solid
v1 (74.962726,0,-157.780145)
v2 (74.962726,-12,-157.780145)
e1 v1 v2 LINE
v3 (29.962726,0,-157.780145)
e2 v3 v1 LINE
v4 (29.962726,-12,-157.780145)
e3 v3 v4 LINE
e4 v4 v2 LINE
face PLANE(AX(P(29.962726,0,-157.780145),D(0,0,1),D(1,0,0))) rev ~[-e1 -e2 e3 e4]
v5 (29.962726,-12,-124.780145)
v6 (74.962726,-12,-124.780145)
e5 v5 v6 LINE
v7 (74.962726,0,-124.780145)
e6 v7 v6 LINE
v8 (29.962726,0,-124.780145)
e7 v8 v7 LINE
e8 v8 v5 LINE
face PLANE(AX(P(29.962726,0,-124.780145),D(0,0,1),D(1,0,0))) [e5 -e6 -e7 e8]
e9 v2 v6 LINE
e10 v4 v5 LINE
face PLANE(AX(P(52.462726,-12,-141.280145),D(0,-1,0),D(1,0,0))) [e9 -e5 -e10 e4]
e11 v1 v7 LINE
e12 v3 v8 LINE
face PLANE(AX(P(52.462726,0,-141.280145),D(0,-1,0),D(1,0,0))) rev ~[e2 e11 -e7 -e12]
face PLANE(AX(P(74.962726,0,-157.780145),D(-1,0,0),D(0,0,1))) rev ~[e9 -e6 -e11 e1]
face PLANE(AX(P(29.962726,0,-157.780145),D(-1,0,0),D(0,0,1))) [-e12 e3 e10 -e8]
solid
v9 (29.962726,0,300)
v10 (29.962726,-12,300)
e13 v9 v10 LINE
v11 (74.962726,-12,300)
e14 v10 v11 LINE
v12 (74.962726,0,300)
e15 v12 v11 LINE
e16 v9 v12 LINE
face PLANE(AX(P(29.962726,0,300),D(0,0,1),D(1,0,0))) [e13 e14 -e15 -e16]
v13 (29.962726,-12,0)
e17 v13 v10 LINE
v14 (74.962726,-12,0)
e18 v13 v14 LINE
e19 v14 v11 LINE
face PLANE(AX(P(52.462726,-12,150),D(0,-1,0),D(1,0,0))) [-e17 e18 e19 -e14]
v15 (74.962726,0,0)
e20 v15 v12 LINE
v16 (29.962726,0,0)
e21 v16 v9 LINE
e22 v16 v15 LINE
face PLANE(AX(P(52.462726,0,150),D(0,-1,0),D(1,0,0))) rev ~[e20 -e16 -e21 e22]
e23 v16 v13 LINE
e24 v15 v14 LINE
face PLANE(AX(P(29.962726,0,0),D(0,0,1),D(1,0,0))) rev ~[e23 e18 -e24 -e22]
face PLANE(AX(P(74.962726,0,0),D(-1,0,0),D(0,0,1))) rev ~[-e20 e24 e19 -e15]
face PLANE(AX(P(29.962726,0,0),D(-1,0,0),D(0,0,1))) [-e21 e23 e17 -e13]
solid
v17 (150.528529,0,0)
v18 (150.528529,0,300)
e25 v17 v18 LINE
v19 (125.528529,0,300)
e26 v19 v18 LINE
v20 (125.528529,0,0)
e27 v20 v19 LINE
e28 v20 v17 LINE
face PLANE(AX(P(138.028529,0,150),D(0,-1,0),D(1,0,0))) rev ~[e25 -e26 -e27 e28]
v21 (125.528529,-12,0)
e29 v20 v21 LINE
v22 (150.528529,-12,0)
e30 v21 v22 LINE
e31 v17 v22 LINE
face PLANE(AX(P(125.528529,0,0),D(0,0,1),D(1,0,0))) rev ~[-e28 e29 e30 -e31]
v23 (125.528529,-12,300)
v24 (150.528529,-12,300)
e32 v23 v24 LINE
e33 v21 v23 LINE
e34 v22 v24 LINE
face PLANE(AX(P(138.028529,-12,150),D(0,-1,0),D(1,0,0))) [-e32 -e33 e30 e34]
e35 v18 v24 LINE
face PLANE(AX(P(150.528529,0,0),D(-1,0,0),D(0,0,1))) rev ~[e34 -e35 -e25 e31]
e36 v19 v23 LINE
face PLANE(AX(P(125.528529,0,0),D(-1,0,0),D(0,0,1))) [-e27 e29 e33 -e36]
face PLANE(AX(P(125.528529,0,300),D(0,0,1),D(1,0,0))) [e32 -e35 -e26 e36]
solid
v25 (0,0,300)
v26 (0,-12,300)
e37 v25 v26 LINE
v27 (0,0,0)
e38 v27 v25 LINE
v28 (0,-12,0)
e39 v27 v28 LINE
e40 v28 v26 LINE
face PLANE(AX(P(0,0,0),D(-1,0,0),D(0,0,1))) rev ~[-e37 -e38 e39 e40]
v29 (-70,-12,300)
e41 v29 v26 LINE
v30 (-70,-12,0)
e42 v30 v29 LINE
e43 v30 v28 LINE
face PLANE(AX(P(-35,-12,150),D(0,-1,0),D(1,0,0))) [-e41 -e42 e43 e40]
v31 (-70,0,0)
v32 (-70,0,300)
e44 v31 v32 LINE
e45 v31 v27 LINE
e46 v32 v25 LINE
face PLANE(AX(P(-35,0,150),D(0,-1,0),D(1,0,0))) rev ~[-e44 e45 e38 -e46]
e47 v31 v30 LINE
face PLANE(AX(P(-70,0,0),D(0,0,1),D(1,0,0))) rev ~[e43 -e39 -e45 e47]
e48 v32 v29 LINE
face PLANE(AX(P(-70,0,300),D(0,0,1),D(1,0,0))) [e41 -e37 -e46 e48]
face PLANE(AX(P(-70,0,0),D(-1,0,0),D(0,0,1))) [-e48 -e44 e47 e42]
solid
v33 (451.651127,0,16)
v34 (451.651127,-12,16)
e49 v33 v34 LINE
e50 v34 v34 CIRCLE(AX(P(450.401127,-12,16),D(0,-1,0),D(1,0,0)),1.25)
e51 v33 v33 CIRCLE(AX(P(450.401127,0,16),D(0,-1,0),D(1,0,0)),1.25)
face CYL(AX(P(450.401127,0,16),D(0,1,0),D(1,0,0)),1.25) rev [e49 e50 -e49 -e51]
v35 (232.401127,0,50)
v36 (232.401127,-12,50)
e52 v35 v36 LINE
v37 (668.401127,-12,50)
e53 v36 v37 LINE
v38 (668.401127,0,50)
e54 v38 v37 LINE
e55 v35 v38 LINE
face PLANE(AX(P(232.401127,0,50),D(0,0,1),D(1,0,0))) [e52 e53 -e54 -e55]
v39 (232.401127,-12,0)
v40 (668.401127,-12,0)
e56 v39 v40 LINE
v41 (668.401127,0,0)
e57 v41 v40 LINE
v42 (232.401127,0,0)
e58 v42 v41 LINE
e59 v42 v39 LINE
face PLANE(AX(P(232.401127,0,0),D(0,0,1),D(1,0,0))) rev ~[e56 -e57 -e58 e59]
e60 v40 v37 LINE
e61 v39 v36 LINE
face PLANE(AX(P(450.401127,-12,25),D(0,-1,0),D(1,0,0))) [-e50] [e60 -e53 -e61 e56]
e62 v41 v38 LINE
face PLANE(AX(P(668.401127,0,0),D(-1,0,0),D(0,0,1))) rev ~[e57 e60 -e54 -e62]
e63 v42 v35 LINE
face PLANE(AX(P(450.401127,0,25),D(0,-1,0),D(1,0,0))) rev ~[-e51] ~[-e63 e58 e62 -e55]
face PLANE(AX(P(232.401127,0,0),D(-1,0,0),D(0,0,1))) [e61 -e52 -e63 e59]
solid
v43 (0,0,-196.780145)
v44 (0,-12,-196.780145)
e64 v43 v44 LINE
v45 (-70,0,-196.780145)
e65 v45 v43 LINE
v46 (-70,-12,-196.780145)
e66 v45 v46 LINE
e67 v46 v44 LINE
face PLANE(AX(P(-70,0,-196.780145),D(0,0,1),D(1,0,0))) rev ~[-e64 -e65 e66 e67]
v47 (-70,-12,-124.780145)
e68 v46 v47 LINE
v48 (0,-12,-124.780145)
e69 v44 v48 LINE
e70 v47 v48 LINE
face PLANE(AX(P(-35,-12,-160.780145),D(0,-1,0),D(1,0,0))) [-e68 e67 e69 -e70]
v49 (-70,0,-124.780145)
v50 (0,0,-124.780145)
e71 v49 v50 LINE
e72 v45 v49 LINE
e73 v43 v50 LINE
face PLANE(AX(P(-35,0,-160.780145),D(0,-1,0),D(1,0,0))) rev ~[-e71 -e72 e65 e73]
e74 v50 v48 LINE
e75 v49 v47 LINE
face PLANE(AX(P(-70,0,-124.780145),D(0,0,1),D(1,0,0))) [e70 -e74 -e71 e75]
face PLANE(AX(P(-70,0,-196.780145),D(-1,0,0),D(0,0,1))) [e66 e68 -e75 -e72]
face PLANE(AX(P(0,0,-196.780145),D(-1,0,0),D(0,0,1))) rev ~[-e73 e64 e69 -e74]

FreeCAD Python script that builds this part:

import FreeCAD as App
import Part
import Sketcher

V = App.Vector


def add_polygon(sketch, points):
    """Adds a closed chain of lines whose ends are joined by coincident constraints."""
    first, n = sketch.GeometryCount, len(points)
    for a, b in zip(points, points[1:] + points[:1]):
        sketch.addGeometry(Part.LineSegment(App.Vector(*a, 0), App.Vector(*b, 0)), False)
    for i in range(n):
        sketch.addConstraint(Sketcher.Constraint("Coincident", first + i, 2, first + (i + 1) % n, 1))

doc = App.newDocument("Part")
body = doc.addObject("PartDesign::Body", "Body")
body.AllowCompound = True

sketch1 = body.newObject("Sketcher::SketchObject", "Sketch")
sketch1.AttachmentSupport = (doc.getObject("XZ_Plane"), [""])
sketch1.MapMode = "FlatFace"
add_polygon(sketch1, [(-70, 300), (-70, 0), (0, 0), (0, 300)])
add_polygon(sketch1, [(30, 300), (30, 0), (75, 0), (75, 300)])
add_polygon(sketch1, [(125.5, 300), (125.5, 0), (150.5, 0), (150.5, 300)])
add_polygon(sketch1, [(232.4, 50), (232.4, 0), (668.4, 0), (668.4, 50)])
sketch1.addGeometry(Part.Circle(V(450.4, 16, 0), V(0, 0, 1), 1.2), False)
add_polygon(sketch1, [(-70, -124.8), (-70, -196.8), (0, -196.8), (0, -124.8)])
add_polygon(sketch1, [(30, -124.8), (30, -157.8), (75, -157.8), (75, -124.8)])
sketch1.addConstraint(Sketcher.Constraint("Vertical", 0))
sketch1.addConstraint(Sketcher.Constraint("Horizontal", 1))
sketch1.addConstraint(Sketcher.Constraint("Vertical", 2))
sketch1.addConstraint(Sketcher.Constraint("Horizontal", 3))
sketch1.addConstraint(Sketcher.Constraint("Vertical", 4))
sketch1.addConstraint(Sketcher.Constraint("Horizontal", 5))
sketch1.addConstraint(Sketcher.Constraint("Vertical", 6))
sketch1.addConstraint(Sketcher.Constraint("Horizontal", 7))
sketch1.addConstraint(Sketcher.Constraint("Vertical", 8))
sketch1.addConstraint(Sketcher.Constraint("Horizontal", 9))
sketch1.addConstraint(Sketcher.Constraint("Vertical", 10))
sketch1.addConstraint(Sketcher.Constraint("Horizontal", 11))
sketch1.addConstraint(Sketcher.Constraint("Vertical", 12))
sketch1.addConstraint(Sketcher.Constraint("Horizontal", 13))
sketch1.addConstraint(Sketcher.Constraint("Vertical", 14))
sketch1.addConstraint(Sketcher.Constraint("Horizontal", 15))
sketch1.addConstraint(Sketcher.Constraint("Vertical", 17))
sketch1.addConstraint(Sketcher.Constraint("Horizontal", 18))
sketch1.addConstraint(Sketcher.Constraint("Vertical", 19))
sketch1.addConstraint(Sketcher.Constraint("Horizontal", 20))
sketch1.addConstraint(Sketcher.Constraint("Vertical", 21))
sketch1.addConstraint(Sketcher.Constraint("Horizontal", 22))
sketch1.addConstraint(Sketcher.Constraint("Vertical", 23))
sketch1.addConstraint(Sketcher.Constraint("Horizontal", 24))
sketch1.addConstraint(Sketcher.Constraint("Coincident", 1, 2, -1, 1))
sketch1.addConstraint(Sketcher.Constraint("PointOnObject", 4, 2, -1))
sketch1.addConstraint(Sketcher.Constraint("PointOnObject", 8, 2, -1))
sketch1.addConstraint(Sketcher.Constraint("PointOnObject", 12, 2, -1))
sketch1.addConstraint(Sketcher.Constraint("PointOnObject", 18, 2, -2))
sketch1.addConstraint(Sketcher.Constraint("Horizontal", 3, 2, 6, 2))
sketch1.addConstraint(Sketcher.Constraint("Horizontal", 7, 2, 10, 2))
sketch1.addConstraint(Sketcher.Constraint("Horizontal", 20, 2, 23, 2))
sketch1.addConstraint(Sketcher.Constraint("Vertical", 3, 2, 17, 2))
sketch1.addConstraint(Sketcher.Constraint("Vertical", 7, 2, 21, 2))
sketch1.addConstraint(Sketcher.Constraint("Vertical", 6, 2, 22, 2))
sketch1.addConstraint(Sketcher.Constraint("Diameter", 16, 2.5))
sketch1.addConstraint(Sketcher.Constraint("DistanceX", 1, 1, 1, 2, 70.0))
sketch1.addConstraint(Sketcher.Constraint("DistanceX", 5, 1, 5, 2, 45.0))
sketch1.addConstraint(Sketcher.Constraint("DistanceX", 9, 1, 9, 2, 25.0))
sketch1.addConstraint(Sketcher.Constraint("DistanceX", 13, 1, 13, 2, 436.0))
sketch1.addConstraint(Sketcher.Constraint("DistanceY", 0, 2, 0, 1, 300.0))
sketch1.addConstraint(Sketcher.Constraint("DistanceY", 12, 2, 12, 1, 50.0))
sketch1.addConstraint(Sketcher.Constraint("DistanceY", 17, 2, 17, 1, 72.0))
sketch1.addConstraint(Sketcher.Constraint("DistanceY", 21, 2, 21, 1, 33.0))
sketch1.addConstraint(Sketcher.Constraint("DistanceY", -1, 1, 16, 3, 16.0))
sketch1.addConstraint(Sketcher.Constraint("DistanceX", 12, 2, 16, 3, 218.0))
sketch1.addConstraint(Sketcher.Constraint("DistanceX", 4, 2, 16, 3, 420.438401))
sketch1.addConstraint(Sketcher.Constraint("DistanceX", 9, 2, 12, 2, 81.872598))
sketch1.addConstraint(Sketcher.Constraint("DistanceX", -1, 1, 8, 2, 125.528529))
sketch1.addConstraint(Sketcher.Constraint("DistanceY", 17, 2, -1, 1, 196.780145))
pad1 = body.newObject("PartDesign::Pad", "Pad")
pad1.Profile = sketch1
pad1.Length = 12

doc.recompute()
